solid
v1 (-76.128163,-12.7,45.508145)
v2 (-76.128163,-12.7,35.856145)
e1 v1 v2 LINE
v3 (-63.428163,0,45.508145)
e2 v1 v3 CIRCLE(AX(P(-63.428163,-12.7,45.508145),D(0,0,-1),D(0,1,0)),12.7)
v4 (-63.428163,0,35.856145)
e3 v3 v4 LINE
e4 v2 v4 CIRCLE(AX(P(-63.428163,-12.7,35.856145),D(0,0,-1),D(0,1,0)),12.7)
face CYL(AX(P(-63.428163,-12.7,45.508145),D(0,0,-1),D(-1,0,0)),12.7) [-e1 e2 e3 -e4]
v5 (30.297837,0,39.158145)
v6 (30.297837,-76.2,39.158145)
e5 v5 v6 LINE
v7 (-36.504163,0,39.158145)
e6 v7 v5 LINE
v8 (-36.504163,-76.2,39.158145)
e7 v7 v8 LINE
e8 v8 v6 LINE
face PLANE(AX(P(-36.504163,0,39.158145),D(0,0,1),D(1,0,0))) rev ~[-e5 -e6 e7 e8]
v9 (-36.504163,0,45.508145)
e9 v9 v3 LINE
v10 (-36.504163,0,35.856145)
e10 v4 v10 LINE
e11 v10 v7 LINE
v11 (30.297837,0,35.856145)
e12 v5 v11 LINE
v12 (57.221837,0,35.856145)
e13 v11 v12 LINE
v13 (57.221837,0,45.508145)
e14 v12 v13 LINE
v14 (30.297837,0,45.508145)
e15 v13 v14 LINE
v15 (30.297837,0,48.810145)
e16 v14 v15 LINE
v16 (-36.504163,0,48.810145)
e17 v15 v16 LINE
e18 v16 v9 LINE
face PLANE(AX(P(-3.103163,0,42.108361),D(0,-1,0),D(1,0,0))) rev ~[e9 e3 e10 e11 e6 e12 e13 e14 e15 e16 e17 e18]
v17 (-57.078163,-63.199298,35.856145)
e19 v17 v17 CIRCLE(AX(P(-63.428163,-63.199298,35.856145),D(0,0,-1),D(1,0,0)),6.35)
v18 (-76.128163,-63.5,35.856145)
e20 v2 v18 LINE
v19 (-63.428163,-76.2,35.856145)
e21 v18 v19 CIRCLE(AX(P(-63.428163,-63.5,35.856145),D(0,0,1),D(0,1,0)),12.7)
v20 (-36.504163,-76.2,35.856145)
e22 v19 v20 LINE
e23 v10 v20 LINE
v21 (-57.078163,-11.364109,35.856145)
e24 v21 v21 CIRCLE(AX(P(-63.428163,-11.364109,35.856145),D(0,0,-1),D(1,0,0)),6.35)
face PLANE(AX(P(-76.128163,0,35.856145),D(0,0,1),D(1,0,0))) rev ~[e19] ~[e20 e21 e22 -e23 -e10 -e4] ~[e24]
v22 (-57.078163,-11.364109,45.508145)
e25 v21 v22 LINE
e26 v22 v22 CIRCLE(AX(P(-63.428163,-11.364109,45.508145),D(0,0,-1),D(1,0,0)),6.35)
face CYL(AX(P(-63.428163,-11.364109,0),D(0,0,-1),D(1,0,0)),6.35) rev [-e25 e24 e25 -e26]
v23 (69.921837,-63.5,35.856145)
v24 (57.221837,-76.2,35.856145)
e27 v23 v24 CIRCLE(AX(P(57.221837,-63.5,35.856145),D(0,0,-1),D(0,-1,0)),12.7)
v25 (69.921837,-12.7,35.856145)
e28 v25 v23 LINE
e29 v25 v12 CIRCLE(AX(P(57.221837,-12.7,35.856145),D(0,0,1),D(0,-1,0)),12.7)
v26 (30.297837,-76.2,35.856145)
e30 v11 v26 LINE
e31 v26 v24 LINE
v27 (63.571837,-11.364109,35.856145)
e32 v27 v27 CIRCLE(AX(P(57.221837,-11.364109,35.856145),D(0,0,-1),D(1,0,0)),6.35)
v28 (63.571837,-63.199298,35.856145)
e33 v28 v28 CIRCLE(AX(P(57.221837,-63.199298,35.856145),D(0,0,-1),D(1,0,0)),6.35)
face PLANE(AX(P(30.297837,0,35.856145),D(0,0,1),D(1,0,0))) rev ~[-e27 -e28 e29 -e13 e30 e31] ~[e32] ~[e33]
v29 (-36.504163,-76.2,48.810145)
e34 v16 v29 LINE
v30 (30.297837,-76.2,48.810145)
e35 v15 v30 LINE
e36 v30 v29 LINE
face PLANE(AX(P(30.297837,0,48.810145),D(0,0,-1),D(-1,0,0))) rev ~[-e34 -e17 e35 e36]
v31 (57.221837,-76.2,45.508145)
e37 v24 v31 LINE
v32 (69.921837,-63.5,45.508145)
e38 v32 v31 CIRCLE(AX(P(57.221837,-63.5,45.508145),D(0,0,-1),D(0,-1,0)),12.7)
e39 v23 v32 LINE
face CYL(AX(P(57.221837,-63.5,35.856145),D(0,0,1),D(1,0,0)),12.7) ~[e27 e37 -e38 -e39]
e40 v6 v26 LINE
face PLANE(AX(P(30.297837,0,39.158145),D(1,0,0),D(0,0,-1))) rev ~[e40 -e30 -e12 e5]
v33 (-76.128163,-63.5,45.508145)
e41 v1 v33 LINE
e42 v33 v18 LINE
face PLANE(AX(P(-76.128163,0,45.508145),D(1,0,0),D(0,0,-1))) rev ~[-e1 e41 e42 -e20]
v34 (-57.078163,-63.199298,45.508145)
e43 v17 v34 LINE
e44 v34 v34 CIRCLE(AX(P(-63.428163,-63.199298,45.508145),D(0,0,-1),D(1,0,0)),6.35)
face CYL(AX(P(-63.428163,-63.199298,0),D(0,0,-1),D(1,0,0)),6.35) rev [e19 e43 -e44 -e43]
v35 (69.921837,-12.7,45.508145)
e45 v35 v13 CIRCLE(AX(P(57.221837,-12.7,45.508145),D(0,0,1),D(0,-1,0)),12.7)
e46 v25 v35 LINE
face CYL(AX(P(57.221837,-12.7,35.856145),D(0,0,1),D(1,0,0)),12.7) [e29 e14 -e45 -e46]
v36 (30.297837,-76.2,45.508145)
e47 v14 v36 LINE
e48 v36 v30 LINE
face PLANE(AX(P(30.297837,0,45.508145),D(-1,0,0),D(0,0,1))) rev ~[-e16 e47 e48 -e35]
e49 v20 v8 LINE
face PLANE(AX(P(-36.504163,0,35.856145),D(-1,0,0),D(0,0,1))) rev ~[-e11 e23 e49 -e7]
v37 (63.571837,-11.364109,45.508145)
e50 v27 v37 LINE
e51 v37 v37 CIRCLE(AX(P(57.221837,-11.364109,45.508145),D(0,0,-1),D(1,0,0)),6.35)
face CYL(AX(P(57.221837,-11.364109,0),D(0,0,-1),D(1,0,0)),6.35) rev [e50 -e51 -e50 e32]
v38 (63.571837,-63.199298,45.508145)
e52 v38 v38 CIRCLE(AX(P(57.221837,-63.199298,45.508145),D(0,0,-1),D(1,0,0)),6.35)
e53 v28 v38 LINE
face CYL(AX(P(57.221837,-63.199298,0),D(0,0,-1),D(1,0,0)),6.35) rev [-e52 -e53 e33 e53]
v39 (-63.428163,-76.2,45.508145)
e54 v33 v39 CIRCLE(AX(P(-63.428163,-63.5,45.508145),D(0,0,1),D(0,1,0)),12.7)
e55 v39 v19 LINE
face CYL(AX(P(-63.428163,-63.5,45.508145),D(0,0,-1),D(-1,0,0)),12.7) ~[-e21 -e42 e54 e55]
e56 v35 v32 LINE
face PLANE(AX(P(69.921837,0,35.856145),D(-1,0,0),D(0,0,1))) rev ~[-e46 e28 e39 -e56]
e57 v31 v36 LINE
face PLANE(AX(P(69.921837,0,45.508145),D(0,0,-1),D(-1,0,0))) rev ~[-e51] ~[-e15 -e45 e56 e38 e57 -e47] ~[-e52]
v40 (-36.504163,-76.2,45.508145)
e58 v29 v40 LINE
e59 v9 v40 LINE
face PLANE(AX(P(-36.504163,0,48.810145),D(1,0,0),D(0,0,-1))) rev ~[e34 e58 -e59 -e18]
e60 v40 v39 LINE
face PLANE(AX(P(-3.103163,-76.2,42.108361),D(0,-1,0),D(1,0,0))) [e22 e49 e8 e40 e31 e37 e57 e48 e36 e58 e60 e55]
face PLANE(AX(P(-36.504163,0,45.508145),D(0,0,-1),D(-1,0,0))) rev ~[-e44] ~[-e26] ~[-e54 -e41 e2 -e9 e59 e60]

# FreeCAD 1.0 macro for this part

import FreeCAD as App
import Part
import Sketcher

V = App.Vector
Q = App.Units.Quantity


def edges_at(feature, points):
    """Names of the edges that pass closest to the given points."""
    edges = feature.Shape.Edges
    near = lambda p: min(range(len(edges)), key=lambda i: edges[i].distToShape(Part.Vertex(*p))[0])
    return sorted({f"Edge{near(p) + 1}" for p in points})


def add_polygon(sketch, points):
    """Adds a closed chain of lines whose ends are joined by coincident constraints."""
    first, n = sketch.GeometryCount, len(points)
    for a, b in zip(points, points[1:] + points[:1]):
        sketch.addGeometry(Part.LineSegment(App.Vector(*a, 0), App.Vector(*b, 0)), False)
    for i in range(n):
        sketch.addConstraint(Sketcher.Constraint("Coincident", first + i, 2, first + (i + 1) % n, 1))

doc = App.newDocument("Part")
params = doc.addObject("Spreadsheet::Sheet", "Params")
for row, (alias, value) in enumerate([
    ("sketch1_width", "1.56 in"),
    ("sketch1_width2", "2.63 in"),
    ("sketch1_height", "0.38 in"),
    ("sketch1_height2", "0.13 in"),
    ("pad1_length", "3 in"),
    ("fillet_radius", "0.5 in"),
    ("sketch2_diameter", "0.5 in"),
], start=1):
    params.set(f"A{row}", alias)
    params.set(f"B{row}", "=" + value)
    params.setAlias(f"B{row}", alias)

body = doc.addObject("PartDesign::Body", "Body")

sketch1 = doc.addObject("Sketcher::SketchObject", "Sketch")
body.addObject(sketch1)
sketch1.AttachmentSupport = (doc.XZ_Plane, [""])
sketch1.MapMode = "FlatFace"
add_polygon(sketch1, [(-36.5, 45.5), (-76.1, 45.5), (-76.1, 35.9), (-36.5, 35.9), (-36.5, 39.2), (30.3, 39.2), (30.3, 35.9), (69.9, 35.9), (69.9, 45.5), (30.3, 45.5), (30.3, 48.8), (-36.5, 48.8)])
sketch1.addConstraint(Sketcher.Constraint("Horizontal", 0))
sketch1.addConstraint(Sketcher.Constraint("Vertical", 1))
sketch1.addConstraint(Sketcher.Constraint("Horizontal", 2))
sketch1.addConstraint(Sketcher.Constraint("Vertical", 3))
sketch1.addConstraint(Sketcher.Constraint("Horizontal", 4))
sketch1.addConstraint(Sketcher.Constraint("Vertical", 5))
sketch1.addConstraint(Sketcher.Constraint("Horizontal", 6))
sketch1.addConstraint(Sketcher.Constraint("Vertical", 7))
sketch1.addConstraint(Sketcher.Constraint("Horizontal", 8))
sketch1.addConstraint(Sketcher.Constraint("Vertical", 9))
sketch1.addConstraint(Sketcher.Constraint("Horizontal", 10))
sketch1.addConstraint(Sketcher.Constraint("Vertical", 11))
sketch1.addConstraint(Sketcher.Constraint("Horizontal", 2, 2, 5, 2))
sketch1.addConstraint(Sketcher.Constraint("Horizontal", 0, 2, 7, 2))
sketch1.addConstraint(Sketcher.Constraint("Vertical", 5, 2, 8, 2))
sketch1.addConstraint(Sketcher.Constraint("Vertical", 3, 2, 10, 2))
sketch1.addConstraint(Sketcher.Constraint("Equal", 2, 6))
sketch1.addConstraint(Sketcher.Constraint("Equal", 5, 9))
sketch1.addConstraint(Sketcher.Constraint("DistanceX", 0, 2, 0, 1, Q("1.56 in")))
sketch1.addConstraint(Sketcher.Constraint("DistanceX", 4, 1, 4, 2, Q("2.63 in")))
sketch1.addConstraint(Sketcher.Constraint("DistanceY", 1, 2, 1, 1, Q("0.38 in")))
sketch1.addConstraint(Sketcher.Constraint("DistanceY", 3, 1, 3, 2, Q("0.13 in")))
sketch1.addConstraint(Sketcher.Constraint("DistanceX", 0, 2, -1, 1, 76.128163))
sketch1.addConstraint(Sketcher.Constraint("DistanceY", -1, 1, 0, 2, 45.508145))
sketch1.setExpression("Constraints[30]", "Params.sketch1_width")
sketch1.setExpression("Constraints[31]", "Params.sketch1_width2")
sketch1.setExpression("Constraints[32]", "Params.sketch1_height")
sketch1.setExpression("Constraints[33]", "Params.sketch1_height2")
pad1 = doc.addObject("PartDesign::Pad", "Pad")
body.addObject(pad1)
pad1.Profile = sketch1
pad1.setExpression("Length", "Params.pad1_length")
doc.recompute()

fillet = doc.addObject("PartDesign::Fillet", "Fillet")
body.addObject(fillet)
fillet.Base = (pad1, edges_at(pad1, [
    (69.922, 0, 40.682),
    (69.922, -76.2, 40.682),
    (-76.128, -76.2, 40.682),
    (-76.128, 0, 40.682),
]))
fillet.setExpression("Radius", "Params.fillet_radius")

sketch2 = doc.addObject("Sketcher::SketchObject", "Sketch001")
body.addObject(sketch2)
sketch2.AttachmentSupport = (doc.XY_Plane, [""])
sketch2.MapMode = "FlatFace"
sketch2.addGeometry(Part.Circle(V(57, -11, 0), V(0, 0, 1), 6), False)
sketch2.addGeometry(Part.Circle(V(57, -63, 0), V(0, 0, 1), 6), False)
sketch2.addGeometry(Part.Circle(V(-63, -63, 0), V(0, 0, 1), 6), False)
sketch2.addGeometry(Part.Circle(V(-63, -11, 0), V(0, 0, 1), 6), False)
sketch2.addConstraint(Sketcher.Constraint("Equal", 0, 1))
sketch2.addConstraint(Sketcher.Constraint("Equal", 1, 2))
sketch2.addConstraint(Sketcher.Constraint("Equal", 2, 3))
sketch2.addConstraint(Sketcher.Constraint("Horizontal", 1, 3, 2, 3))
sketch2.addConstraint(Sketcher.Constraint("Horizontal", 0, 3, 3, 3))
sketch2.addConstraint(Sketcher.Constraint("Vertical", 0, 3, 1, 3))
sketch2.addConstraint(Sketcher.Constraint("Vertical", 2, 3, 3, 3))
sketch2.addConstraint(Sketcher.Constraint("Diameter", 0, Q("0.5 in")))
sketch2.addConstraint(Sketcher.Constraint("DistanceX", 2, 3, 1, 3, Q("4.75 in")))
sketch2.addConstraint(Sketcher.Constraint("DistanceY", 0, 3, -1, 1, 11.364109))
sketch2.addConstraint(Sketcher.Constraint("DistanceY", 1, 3, 0, 3, 51.835189))
sketch2.addConstraint(Sketcher.Constraint("DistanceX", -1, 1, 0, 3, 57.221837))
sketch2.setExpression("Constraints[7]", "Params.sketch2_diameter")
pocket1 = doc.addObject("PartDesign::Pocket", "Pocket")
body.addObject(pocket1)
pocket1.Profile = sketch2
pocket1.Type = "ThroughAll"
pocket1.Reversed = True

doc.recompute()
